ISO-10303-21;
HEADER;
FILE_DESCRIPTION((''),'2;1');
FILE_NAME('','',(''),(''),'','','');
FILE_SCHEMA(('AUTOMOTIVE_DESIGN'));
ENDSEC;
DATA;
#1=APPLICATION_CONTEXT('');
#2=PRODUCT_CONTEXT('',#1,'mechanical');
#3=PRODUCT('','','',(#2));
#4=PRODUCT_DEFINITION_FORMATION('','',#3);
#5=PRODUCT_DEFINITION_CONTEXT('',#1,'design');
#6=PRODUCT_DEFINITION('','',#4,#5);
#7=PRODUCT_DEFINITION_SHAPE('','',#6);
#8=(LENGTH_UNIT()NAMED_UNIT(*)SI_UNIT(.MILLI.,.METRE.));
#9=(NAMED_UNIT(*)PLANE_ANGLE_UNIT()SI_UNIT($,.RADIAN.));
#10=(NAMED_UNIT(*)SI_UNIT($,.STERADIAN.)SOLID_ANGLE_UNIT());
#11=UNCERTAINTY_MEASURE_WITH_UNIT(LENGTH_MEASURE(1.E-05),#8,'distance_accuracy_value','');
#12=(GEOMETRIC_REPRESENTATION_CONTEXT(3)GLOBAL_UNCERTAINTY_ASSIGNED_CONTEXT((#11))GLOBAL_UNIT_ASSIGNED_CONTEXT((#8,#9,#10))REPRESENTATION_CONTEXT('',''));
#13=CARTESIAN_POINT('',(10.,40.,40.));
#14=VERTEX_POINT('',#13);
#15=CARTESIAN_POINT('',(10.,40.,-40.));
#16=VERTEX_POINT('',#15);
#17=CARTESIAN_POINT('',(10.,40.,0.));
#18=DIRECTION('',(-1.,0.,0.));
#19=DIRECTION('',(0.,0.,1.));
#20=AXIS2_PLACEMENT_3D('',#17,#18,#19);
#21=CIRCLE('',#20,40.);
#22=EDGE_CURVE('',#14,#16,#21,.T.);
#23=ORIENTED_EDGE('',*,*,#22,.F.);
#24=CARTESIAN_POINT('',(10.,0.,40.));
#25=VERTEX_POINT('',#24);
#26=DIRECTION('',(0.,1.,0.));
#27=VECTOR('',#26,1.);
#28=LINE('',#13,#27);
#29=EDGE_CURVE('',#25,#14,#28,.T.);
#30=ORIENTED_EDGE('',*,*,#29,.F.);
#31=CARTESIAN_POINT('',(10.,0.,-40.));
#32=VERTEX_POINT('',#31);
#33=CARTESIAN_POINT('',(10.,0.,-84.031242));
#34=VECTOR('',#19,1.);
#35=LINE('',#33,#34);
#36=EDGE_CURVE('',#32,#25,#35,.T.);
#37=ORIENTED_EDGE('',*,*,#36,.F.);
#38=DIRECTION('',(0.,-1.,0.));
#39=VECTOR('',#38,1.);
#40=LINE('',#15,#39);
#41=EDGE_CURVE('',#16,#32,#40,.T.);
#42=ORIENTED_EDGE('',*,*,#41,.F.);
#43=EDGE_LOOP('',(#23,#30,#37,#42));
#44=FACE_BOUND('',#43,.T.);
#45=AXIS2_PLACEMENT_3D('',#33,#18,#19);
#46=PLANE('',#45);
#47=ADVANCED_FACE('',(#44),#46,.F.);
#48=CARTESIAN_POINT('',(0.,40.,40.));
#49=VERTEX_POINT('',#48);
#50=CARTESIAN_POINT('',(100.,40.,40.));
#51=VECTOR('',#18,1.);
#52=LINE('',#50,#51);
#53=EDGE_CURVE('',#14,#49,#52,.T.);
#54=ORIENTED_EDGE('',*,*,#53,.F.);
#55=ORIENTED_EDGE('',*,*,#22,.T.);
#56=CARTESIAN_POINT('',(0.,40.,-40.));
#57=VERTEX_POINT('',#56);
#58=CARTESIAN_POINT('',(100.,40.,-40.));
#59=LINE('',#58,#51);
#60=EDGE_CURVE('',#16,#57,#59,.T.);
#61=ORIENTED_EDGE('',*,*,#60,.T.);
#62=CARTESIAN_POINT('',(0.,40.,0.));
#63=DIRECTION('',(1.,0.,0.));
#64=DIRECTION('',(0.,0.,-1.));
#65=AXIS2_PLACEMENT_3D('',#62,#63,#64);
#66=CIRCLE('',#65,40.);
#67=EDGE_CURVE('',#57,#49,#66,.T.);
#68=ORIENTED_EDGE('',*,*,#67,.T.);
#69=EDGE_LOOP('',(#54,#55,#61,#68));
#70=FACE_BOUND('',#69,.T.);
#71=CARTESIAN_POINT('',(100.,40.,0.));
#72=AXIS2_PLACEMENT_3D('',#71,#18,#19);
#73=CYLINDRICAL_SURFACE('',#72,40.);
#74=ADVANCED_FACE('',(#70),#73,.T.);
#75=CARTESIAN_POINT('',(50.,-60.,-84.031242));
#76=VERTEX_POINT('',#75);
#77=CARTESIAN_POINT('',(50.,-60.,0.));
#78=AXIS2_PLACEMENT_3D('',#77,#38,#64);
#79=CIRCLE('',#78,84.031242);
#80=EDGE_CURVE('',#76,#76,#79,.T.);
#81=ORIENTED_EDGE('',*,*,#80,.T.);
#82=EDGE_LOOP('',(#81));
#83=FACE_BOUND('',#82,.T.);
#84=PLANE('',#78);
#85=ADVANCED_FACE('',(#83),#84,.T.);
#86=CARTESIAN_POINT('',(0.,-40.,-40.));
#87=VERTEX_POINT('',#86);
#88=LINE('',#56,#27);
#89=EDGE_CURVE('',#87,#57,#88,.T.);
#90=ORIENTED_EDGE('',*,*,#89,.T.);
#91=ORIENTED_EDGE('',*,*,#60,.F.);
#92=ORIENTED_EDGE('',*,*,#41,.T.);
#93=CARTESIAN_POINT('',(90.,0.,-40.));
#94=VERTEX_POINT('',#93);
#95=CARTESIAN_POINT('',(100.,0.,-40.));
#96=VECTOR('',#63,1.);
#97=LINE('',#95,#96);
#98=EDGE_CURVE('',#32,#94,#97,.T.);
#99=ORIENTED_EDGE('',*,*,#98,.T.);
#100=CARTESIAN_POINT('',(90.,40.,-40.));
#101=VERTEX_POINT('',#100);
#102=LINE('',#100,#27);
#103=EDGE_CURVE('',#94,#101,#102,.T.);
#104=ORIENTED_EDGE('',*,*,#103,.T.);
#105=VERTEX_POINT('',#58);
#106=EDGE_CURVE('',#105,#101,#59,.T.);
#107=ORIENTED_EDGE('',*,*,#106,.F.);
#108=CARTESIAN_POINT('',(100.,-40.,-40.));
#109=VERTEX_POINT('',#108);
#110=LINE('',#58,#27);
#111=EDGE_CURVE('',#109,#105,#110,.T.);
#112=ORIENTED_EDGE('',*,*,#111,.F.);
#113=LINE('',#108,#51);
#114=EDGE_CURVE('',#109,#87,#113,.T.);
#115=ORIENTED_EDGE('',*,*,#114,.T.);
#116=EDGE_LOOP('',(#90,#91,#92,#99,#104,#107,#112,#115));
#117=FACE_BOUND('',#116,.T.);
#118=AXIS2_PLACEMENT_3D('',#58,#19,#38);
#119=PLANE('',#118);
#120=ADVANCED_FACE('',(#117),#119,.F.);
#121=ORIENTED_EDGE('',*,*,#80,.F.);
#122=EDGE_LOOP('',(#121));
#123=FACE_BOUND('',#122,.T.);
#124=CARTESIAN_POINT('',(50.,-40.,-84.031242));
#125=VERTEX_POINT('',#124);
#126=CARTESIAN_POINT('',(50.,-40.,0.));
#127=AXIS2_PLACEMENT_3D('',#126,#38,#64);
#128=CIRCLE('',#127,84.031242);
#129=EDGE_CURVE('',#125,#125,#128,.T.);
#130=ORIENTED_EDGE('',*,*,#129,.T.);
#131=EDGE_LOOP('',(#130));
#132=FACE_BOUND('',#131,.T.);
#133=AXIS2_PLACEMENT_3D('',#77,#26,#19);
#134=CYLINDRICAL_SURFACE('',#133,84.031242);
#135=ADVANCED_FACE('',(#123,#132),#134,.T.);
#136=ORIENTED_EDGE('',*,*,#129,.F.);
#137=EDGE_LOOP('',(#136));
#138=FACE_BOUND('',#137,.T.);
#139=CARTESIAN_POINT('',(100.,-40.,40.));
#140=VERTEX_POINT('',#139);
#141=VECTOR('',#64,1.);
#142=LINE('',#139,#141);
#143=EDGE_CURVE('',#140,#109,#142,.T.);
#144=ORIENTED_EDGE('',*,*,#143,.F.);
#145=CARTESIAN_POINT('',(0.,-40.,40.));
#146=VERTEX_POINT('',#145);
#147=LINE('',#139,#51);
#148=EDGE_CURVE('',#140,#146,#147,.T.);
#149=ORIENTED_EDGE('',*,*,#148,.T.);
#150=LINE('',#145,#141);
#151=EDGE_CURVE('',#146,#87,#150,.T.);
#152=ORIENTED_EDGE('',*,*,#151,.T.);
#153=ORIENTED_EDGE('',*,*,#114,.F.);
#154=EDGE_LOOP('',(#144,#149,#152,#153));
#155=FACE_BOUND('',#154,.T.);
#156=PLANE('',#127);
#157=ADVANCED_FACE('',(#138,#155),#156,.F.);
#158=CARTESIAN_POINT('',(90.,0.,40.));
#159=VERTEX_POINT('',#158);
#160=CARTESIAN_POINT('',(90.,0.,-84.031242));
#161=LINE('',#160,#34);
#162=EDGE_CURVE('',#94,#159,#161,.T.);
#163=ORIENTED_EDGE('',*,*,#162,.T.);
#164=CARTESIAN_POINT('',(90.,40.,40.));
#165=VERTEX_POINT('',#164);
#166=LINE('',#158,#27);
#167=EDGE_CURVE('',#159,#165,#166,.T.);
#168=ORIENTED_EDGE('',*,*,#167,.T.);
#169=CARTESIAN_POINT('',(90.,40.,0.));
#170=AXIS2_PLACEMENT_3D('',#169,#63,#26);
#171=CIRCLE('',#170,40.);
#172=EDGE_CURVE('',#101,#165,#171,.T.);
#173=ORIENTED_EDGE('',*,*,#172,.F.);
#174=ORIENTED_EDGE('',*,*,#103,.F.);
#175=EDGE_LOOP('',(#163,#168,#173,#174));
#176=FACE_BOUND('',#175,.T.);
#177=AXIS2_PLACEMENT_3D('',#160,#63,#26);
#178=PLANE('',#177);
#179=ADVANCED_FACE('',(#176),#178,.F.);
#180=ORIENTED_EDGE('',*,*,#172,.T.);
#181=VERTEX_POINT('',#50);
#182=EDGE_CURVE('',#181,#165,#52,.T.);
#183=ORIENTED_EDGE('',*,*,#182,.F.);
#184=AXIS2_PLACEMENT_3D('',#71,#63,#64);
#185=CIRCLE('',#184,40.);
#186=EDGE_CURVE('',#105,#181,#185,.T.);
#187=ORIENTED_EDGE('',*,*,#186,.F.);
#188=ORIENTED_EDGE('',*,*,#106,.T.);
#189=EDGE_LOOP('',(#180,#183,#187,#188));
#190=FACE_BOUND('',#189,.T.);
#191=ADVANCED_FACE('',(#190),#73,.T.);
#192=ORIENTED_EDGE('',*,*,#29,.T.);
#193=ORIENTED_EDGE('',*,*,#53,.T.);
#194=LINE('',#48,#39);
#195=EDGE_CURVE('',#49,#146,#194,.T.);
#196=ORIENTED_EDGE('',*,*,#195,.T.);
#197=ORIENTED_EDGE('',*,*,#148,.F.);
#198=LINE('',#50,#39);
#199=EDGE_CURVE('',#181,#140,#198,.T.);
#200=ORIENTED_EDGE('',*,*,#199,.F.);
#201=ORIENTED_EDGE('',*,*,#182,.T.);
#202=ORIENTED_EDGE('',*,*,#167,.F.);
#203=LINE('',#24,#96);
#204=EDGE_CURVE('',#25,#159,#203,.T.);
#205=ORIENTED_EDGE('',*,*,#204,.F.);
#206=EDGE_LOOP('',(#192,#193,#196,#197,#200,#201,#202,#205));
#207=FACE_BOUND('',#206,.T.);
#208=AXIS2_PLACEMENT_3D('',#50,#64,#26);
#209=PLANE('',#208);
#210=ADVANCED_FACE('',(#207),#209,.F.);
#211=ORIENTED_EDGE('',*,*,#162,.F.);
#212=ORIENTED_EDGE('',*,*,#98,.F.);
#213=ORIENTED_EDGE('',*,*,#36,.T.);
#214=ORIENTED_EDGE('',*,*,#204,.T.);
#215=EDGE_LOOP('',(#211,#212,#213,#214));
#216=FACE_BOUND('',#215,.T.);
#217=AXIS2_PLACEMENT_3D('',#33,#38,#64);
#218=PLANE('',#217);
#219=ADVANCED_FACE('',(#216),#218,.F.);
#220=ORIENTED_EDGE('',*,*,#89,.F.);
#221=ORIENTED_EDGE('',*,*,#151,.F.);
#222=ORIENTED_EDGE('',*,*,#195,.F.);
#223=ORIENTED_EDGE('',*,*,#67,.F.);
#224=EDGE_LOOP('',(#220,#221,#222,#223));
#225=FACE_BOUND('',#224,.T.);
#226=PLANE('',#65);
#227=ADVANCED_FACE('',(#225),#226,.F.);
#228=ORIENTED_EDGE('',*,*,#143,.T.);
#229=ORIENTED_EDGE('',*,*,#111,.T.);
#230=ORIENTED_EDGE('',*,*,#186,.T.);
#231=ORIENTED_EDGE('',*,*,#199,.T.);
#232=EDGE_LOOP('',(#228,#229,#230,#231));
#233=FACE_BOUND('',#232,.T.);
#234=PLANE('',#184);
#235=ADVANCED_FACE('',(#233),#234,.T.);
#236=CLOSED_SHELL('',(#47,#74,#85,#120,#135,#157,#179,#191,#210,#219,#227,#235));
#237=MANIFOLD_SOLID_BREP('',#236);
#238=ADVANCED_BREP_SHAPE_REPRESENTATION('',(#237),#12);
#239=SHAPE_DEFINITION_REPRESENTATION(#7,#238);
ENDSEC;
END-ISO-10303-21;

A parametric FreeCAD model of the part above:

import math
import FreeCAD as App
import Part
import Sketcher
from FreeCAD import Vector
Q = App.Units.Quantity


def add_polygon(sketch, points):
    """Adds a closed chain of lines whose ends are joined by coincident constraints."""
    first, n = sketch.GeometryCount, len(points)
    for a, b in zip(points, points[1:] + points[:1]):
        sketch.addGeometry(Part.LineSegment(App.Vector(*a, 0), App.Vector(*b, 0)), False)
    for i in range(n):
        sketch.addConstraint(Sketcher.Constraint("Coincident", first + i, 2, first + (i + 1) % n, 1))

doc = App.newDocument("Part")
body = doc.addObject("PartDesign::Body", "Body")

# Sketch on YZ plane
sketch1 = body.newObject("Sketcher::SketchObject", "Sketch")
sketch1.AttachmentSupport = (doc.getObject("YZ_Plane"), [""])
sketch1.MapMode = "FlatFace"
sketch1.addGeometry(Part.LineSegment(Vector(40, 40, 0), Vector(-40, 40, 0)), False)
sketch1.addGeometry(Part.LineSegment(Vector(-40, 40, 0), Vector(-40, -40, 0)), False)
sketch1.addGeometry(Part.LineSegment(Vector(-40, -40, 0), Vector(40, -40, 0)), False)
sketch1.addGeometry(Part.ArcOfCircle(Part.Circle(Vector(40, 0, 0), Vector(0, 0, 1), 40), math.radians(-90), math.radians(90)), False)
sketch1.addConstraint(Sketcher.Constraint("Coincident", 0, 2, 1, 1))
sketch1.addConstraint(Sketcher.Constraint("Coincident", 1, 2, 2, 1))
sketch1.addConstraint(Sketcher.Constraint("Tangent", 2, 2, 3, 1))
sketch1.addConstraint(Sketcher.Constraint("Tangent", 3, 2, 0, 1))
sketch1.addConstraint(Sketcher.Constraint("Horizontal", 0))
sketch1.addConstraint(Sketcher.Constraint("Vertical", 1))
sketch1.addConstraint(Sketcher.Constraint("Horizontal", 2))
sketch1.addConstraint(Sketcher.Constraint("Symmetric", 0, 2, 2, 2, -1, 1))
sketch1.addConstraint(Sketcher.Constraint("Equal", 2, 1))
sketch1.addConstraint(Sketcher.Constraint("Radius", 3, Q("40 mm")))
pad1 = body.newObject("PartDesign::Pad", "Pad")
pad1.Profile = sketch1
pad1.Length = 100

# Sketch on XZ plane
sketch2 = body.newObject("Sketcher::SketchObject", "Sketch001")
sketch2.AttachmentSupport = (doc.getObject("XZ_Plane"), [""])
sketch2.MapMode = "FlatFace"
sketch2.AttachmentOffset = App.Placement(Vector(0, 0, 40), App.Rotation())
sketch2.addGeometry(Part.Circle(Vector(50, 0, 0), Vector(0, 0, 1), 84), False)
sketch2.addConstraint(Sketcher.Constraint("PointOnObject", 0, 3, -1))
sketch2.addConstraint(Sketcher.Constraint("DistanceX", -1, 1, 0, 3, Q("50 mm")))
sketch2.addConstraint(Sketcher.Constraint("Diameter", 0, Q("168.062485 mm")))
pad2 = body.newObject("PartDesign::Pad", "Pad001")
pad2.Profile = sketch2
pad2.Length = 20

# Sketch on XY plane
sketch3 = body.newObject("Sketcher::SketchObject", "Sketch002")
sketch3.AttachmentSupport = (doc.getObject("XY_Plane"), [""])
sketch3.MapMode = "FlatFace"
sketch3.AttachmentOffset = App.Placement(Vector(0, 0, 40), App.Rotation())
add_polygon(sketch3, [(10, 80), (10, 0), (90, 0), (90, 80)])  # lines 0-3
sketch3.addConstraint(Sketcher.Constraint("Vertical", 0))
sketch3.addConstraint(Sketcher.Constraint("Horizontal", 1))
sketch3.addConstraint(Sketcher.Constraint("Vertical", 2))
sketch3.addConstraint(Sketcher.Constraint("Horizontal", 3))
sketch3.addConstraint(Sketcher.Constraint("PointOnObject", 0, 2, -1))
sketch3.addConstraint(Sketcher.Constraint("Equal", 3, 0))
sketch3.addConstraint(Sketcher.Constraint("DistanceX", 1, 1, 1, 2, Q("80 mm")))
sketch3.addConstraint(Sketcher.Constraint("DistanceX", -1, 1, 0, 2, Q("10 mm")))
pocket1 = body.newObject("PartDesign::Pocket", "Pocket")
pocket1.Profile = sketch3
pocket1.Type = "ThroughAll"

doc.recompute()
